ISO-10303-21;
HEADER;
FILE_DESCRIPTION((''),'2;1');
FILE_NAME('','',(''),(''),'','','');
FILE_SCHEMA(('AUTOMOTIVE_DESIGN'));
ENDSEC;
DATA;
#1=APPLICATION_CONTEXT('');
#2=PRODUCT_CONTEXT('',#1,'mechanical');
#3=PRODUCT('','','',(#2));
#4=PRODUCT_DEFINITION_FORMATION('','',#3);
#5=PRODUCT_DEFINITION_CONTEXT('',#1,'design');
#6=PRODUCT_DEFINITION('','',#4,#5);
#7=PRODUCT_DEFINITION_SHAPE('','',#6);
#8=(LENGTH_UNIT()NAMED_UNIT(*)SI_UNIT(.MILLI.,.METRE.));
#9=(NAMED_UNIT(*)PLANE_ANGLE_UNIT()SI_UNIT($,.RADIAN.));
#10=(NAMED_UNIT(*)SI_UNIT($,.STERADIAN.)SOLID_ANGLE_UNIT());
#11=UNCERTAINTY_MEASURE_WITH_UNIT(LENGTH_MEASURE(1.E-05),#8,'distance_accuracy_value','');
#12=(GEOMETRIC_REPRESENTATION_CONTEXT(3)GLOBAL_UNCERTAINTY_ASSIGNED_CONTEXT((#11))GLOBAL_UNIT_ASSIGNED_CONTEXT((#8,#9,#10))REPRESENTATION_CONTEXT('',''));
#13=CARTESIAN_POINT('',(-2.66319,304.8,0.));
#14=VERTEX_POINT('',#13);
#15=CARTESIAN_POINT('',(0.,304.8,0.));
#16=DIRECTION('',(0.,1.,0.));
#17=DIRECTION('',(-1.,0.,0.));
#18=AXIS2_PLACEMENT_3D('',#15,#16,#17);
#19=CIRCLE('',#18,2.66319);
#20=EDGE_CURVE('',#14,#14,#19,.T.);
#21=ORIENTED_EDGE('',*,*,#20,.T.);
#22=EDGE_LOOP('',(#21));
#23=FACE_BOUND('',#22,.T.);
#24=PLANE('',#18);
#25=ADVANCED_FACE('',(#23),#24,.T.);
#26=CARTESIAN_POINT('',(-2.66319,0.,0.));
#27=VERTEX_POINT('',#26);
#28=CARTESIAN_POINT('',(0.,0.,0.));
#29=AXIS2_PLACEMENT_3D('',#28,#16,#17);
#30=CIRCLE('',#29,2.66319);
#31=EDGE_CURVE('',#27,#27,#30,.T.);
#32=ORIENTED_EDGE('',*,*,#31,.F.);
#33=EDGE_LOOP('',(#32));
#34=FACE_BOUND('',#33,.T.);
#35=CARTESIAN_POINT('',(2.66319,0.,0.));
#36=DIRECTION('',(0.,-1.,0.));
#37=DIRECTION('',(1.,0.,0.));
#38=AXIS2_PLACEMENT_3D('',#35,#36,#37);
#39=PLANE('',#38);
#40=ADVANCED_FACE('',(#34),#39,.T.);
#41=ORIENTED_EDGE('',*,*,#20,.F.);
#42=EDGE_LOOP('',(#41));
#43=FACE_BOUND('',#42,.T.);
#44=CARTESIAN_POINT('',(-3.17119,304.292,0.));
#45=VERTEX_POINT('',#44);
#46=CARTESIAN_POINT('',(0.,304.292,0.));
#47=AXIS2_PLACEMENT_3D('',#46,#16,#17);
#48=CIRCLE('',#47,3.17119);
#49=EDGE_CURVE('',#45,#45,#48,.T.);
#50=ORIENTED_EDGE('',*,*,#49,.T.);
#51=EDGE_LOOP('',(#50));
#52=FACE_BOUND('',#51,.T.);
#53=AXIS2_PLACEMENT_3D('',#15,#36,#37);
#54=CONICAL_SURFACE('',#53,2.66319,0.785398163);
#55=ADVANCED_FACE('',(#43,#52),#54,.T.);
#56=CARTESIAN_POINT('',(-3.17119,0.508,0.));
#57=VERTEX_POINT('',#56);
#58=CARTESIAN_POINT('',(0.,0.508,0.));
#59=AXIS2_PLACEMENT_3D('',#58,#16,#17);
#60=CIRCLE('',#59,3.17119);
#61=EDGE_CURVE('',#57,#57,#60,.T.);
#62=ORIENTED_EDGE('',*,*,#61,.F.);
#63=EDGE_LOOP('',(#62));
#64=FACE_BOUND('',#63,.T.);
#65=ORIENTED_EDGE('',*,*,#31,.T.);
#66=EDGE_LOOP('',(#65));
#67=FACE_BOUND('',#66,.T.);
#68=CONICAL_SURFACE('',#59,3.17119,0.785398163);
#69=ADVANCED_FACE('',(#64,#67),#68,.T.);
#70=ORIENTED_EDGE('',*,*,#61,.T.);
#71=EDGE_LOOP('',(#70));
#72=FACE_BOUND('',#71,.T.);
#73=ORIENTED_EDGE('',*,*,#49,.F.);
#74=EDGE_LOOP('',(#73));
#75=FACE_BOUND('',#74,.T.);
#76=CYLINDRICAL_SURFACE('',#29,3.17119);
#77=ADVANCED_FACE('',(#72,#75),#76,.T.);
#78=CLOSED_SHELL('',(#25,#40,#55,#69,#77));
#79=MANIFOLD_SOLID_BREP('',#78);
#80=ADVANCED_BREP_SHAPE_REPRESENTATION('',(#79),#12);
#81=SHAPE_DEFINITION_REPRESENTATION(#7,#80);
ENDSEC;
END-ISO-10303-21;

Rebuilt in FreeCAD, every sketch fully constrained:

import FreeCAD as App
import Part
import Sketcher

V = App.Vector
Q = App.Units.Quantity

doc = App.newDocument("Part")
params = doc.addObject("Spreadsheet::Sheet", "Params")
for row, (alias, value) in enumerate([
    ("sketch1_height", "12 in"),
    ("sketch1_height2", "11.96 in"),
    ("revolution_angle", "360 deg"),
], start=1):
    params.set(f"A{row}", alias)
    params.set(f"B{row}", "=" + value)
    params.setAlias(f"B{row}", alias)

body = doc.addObject("PartDesign::Body", "Body")

# Sketch on XY plane
sketch1 = doc.addObject("Sketcher::SketchObject", "Sketch")
body.addObject(sketch1)
sketch1.AttachmentSupport = (doc.XY_Plane, [""])
sketch1.MapMode = "FlatFace"
sketch1.addGeometry(Part.LineSegment(V(2.7, 0, 0), V(0, 0, 0)), False)
sketch1.addGeometry(Part.LineSegment(V(0, 0, 0), V(0, 304.8, 0)), False)
sketch1.addGeometry(Part.LineSegment(V(0, 304.8, 0), V(2.7, 304.8, 0)), False)
sketch1.addGeometry(Part.LineSegment(V(2.7, 304.8, 0), V(3.2, 304.3, 0)), False)
sketch1.addGeometry(Part.LineSegment(V(3.2, 304.3, 0), V(3.2, 0.5, 0)), False)
sketch1.addGeometry(Part.LineSegment(V(3.2, 0.5, 0), V(2.7, 0, 0)), False)
sketch1.addConstraint(Sketcher.Constraint("Coincident", 0, 2, 1, 1))
sketch1.addConstraint(Sketcher.Constraint("Coincident", 1, 2, 2, 1))
sketch1.addConstraint(Sketcher.Constraint("Coincident", 2, 2, 3, 1))
sketch1.addConstraint(Sketcher.Constraint("Coincident", 3, 2, 4, 1))
sketch1.addConstraint(Sketcher.Constraint("Coincident", 4, 2, 5, 1))
sketch1.addConstraint(Sketcher.Constraint("Coincident", 5, 2, 0, 1))
sketch1.addConstraint(Sketcher.Constraint("Horizontal", 0))
sketch1.addConstraint(Sketcher.Constraint("Vertical", 1))
sketch1.addConstraint(Sketcher.Constraint("Horizontal", 2))
sketch1.addConstraint(Sketcher.Constraint("Vertical", 4))
sketch1.addConstraint(Sketcher.Constraint("Coincident", 0, 2, -1, 1))
sketch1.addConstraint(Sketcher.Constraint("Perpendicular", 3, 5))
sketch1.addConstraint(Sketcher.Constraint("Vertical", 2, 2, 5, 2))
sketch1.addConstraint(Sketcher.Constraint("Equal", 3, 5))
sketch1.addConstraint(Sketcher.Constraint("DistanceY", 1, 1, 1, 2, Q("12 in")))
sketch1.addConstraint(Sketcher.Constraint("DistanceY", 4, 2, 4, 1, Q("11.96 in")))
sketch1.addConstraint(Sketcher.Constraint("DistanceX", 0, 2, 0, 1, Q("2.66319 mm")))
sketch1.setExpression("Constraints[14]", "Params.sketch1_height")
sketch1.setExpression("Constraints[15]", "Params.sketch1_height2")
revolution = doc.addObject("PartDesign::Revolution", "Revolution")
body.addObject(revolution)
revolution.Profile = sketch1
revolution.ReferenceAxis = (sketch1, ["V_Axis"])
revolution.setExpression("Angle", "Params.revolution_angle")

doc.recompute()
